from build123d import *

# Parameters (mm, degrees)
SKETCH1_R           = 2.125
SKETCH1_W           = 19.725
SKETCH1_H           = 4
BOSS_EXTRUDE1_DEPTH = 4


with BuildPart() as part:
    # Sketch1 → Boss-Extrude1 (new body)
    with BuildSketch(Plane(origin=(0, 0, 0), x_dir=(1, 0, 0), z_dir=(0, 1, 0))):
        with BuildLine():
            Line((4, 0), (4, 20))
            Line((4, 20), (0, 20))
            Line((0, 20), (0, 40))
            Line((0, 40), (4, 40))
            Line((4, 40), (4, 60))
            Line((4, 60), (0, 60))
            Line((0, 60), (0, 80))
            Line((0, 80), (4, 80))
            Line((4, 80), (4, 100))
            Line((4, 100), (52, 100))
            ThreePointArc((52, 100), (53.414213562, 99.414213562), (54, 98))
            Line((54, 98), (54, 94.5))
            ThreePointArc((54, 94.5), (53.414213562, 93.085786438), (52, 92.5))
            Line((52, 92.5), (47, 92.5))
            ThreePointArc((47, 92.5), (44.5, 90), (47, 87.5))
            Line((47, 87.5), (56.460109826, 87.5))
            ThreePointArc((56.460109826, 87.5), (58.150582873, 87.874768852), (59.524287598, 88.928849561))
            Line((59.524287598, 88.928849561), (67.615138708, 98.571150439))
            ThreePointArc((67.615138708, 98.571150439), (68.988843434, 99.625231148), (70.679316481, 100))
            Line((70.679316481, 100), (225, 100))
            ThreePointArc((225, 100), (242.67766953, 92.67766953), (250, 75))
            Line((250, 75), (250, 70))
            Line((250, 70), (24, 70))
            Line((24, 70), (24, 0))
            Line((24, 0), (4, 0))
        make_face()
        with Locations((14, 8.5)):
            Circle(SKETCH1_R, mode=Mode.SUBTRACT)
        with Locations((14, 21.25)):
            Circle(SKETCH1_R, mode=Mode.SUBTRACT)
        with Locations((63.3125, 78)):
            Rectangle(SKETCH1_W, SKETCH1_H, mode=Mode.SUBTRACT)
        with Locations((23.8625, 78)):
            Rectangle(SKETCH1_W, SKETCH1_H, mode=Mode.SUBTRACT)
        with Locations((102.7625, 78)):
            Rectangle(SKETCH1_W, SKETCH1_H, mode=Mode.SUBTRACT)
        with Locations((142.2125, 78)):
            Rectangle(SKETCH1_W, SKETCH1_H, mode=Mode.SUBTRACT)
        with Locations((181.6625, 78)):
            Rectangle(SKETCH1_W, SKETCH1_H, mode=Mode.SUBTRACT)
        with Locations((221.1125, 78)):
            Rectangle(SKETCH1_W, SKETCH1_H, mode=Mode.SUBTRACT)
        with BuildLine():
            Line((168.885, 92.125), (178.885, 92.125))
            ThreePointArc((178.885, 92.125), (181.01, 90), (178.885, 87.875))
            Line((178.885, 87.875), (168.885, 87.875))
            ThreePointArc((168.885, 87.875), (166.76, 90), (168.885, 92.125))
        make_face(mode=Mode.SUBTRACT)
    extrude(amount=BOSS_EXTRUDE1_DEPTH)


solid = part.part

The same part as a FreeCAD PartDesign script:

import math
import FreeCAD as App
import Part
import Sketcher
Q = App.Units.Quantity

doc = App.newDocument("Part")
body = doc.addObject("PartDesign::Body", "Body")

# Sketch on XZ plane
sketch1 = body.newObject("Sketcher::SketchObject", "Sketch")
sketch1.AttachmentSupport = (doc.getObject("XZ_Plane"), [""])
sketch1.MapMode = "FlatFace"
sketch1.addGeometry(Part.LineSegment(App.Vector(4, -20, 0), App.Vector(4, 0, 0)), False)
sketch1.addGeometry(Part.LineSegment(App.Vector(4, 0, 0), App.Vector(24, 0, 0)), False)
sketch1.addGeometry(Part.LineSegment(App.Vector(24, 0, 0), App.Vector(24, -70, 0)), False)
sketch1.addGeometry(Part.LineSegment(App.Vector(24, -70, 0), App.Vector(250, -70, 0)), False)
sketch1.addGeometry(Part.LineSegment(App.Vector(250, -70, 0), App.Vector(250, -75, 0)), False)
sketch1.addGeometry(Part.ArcOfCircle(Part.Circle(App.Vector(225, -75, 0), App.Vector(0, 0, 1), 25), math.radians(-90), math.radians(0)), False)
sketch1.addGeometry(Part.LineSegment(App.Vector(225, -100, 0), App.Vector(70.7, -100, 0)), False)
sketch1.addGeometry(Part.ArcOfCircle(Part.Circle(App.Vector(70.7, -96, 0), App.Vector(0, 0, 1), 4), math.radians(-140), math.radians(-90)), False)
sketch1.addGeometry(Part.LineSegment(App.Vector(67.6, -98.6, 0), App.Vector(59.5, -88.9, 0)), False)
sketch1.addGeometry(Part.ArcOfCircle(Part.Circle(App.Vector(56.5, -91.5, 0), App.Vector(0, 0, 1), 4), math.radians(40), math.radians(90)), False)
sketch1.addGeometry(Part.LineSegment(App.Vector(56.5, -87.5, 0), App.Vector(47, -87.5, 0)), False)
sketch1.addGeometry(Part.ArcOfCircle(Part.Circle(App.Vector(47, -90, 0), App.Vector(0, 0, 1), 2.5), math.radians(90), math.radians(270)), False)
sketch1.addGeometry(Part.LineSegment(App.Vector(47, -92.5, 0), App.Vector(52, -92.5, 0)), False)
sketch1.addGeometry(Part.ArcOfCircle(Part.Circle(App.Vector(52, -94.5, 0), App.Vector(0, 0, 1), 2), math.radians(0), math.radians(90)), False)
sketch1.addGeometry(Part.LineSegment(App.Vector(54, -94.5, 0), App.Vector(54, -98, 0)), False)
sketch1.addGeometry(Part.ArcOfCircle(Part.Circle(App.Vector(52, -98, 0), App.Vector(0, 0, 1), 2), math.radians(-90), math.radians(0)), False)
sketch1.addGeometry(Part.LineSegment(App.Vector(52, -100, 0), App.Vector(4, -100, 0)), False)
sketch1.addGeometry(Part.LineSegment(App.Vector(4, -100, 0), App.Vector(4, -80, 0)), False)
sketch1.addGeometry(Part.LineSegment(App.Vector(4, -80, 0), App.Vector(0, -80, 0)), False)
sketch1.addGeometry(Part.LineSegment(App.Vector(0, -80, 0), App.Vector(0, -60, 0)), False)
sketch1.addGeometry(Part.LineSegment(App.Vector(0, -60, 0), App.Vector(4, -60, 0)), False)
sketch1.addGeometry(Part.LineSegment(App.Vector(4, -60, 0), App.Vector(4, -40, 0)), False)
sketch1.addGeometry(Part.LineSegment(App.Vector(4, -40, 0), App.Vector(0, -40, 0)), False)
sketch1.addGeometry(Part.LineSegment(App.Vector(0, -40, 0), App.Vector(0, -20, 0)), False)
sketch1.addGeometry(Part.LineSegment(App.Vector(0, -20, 0), App.Vector(4, -20, 0)), False)
sketch1.addGeometry(Part.Circle(App.Vector(14, -8.5, 0), App.Vector(0, 0, 1), 2.1), False)
sketch1.addGeometry(Part.Circle(App.Vector(14, -21.2, 0), App.Vector(0, 0, 1), 2.1), False)
sketch1.addGeometry(Part.LineSegment(App.Vector(211.2, -76, 0), App.Vector(211.2, -80, 0)), False)
sketch1.addGeometry(Part.LineSegment(App.Vector(211.2, -80, 0), App.Vector(231, -80, 0)), False)
sketch1.addGeometry(Part.LineSegment(App.Vector(231, -80, 0), App.Vector(231, -76, 0)), False)
sketch1.addGeometry(Part.LineSegment(App.Vector(231, -76, 0), App.Vector(211.2, -76, 0)), False)
sketch1.addGeometry(Part.LineSegment(App.Vector(171.8, -76, 0), App.Vector(171.8, -80, 0)), False)
sketch1.addGeometry(Part.LineSegment(App.Vector(171.8, -80, 0), App.Vector(191.5, -80, 0)), False)
sketch1.addGeometry(Part.LineSegment(App.Vector(191.5, -80, 0), App.Vector(191.5, -76, 0)), False)
sketch1.addGeometry(Part.LineSegment(App.Vector(191.5, -76, 0), App.Vector(171.8, -76, 0)), False)
sketch1.addGeometry(Part.LineSegment(App.Vector(132.3, -76, 0), App.Vector(132.3, -80, 0)), False)
sketch1.addGeometry(Part.LineSegment(App.Vector(132.3, -80, 0), App.Vector(152.1, -80, 0)), False)
sketch1.addGeometry(Part.LineSegment(App.Vector(152.1, -80, 0), App.Vector(152.1, -76, 0)), False)
sketch1.addGeometry(Part.LineSegment(App.Vector(152.1, -76, 0), App.Vector(132.3, -76, 0)), False)
sketch1.addGeometry(Part.LineSegment(App.Vector(168.9, -92.1, 0), App.Vector(178.9, -92.1, 0)), False)
sketch1.addGeometry(Part.ArcOfCircle(Part.Circle(App.Vector(178.9, -90, 0), App.Vector(0, 0, 1), 2.1), math.radians(-90), math.radians(90)), False)
sketch1.addGeometry(Part.LineSegment(App.Vector(178.9, -87.9, 0), App.Vector(168.9, -87.9, 0)), False)
sketch1.addGeometry(Part.ArcOfCircle(Part.Circle(App.Vector(168.9, -90, 0), App.Vector(0, 0, 1), 2.1), math.radians(90), math.radians(270)), False)
sketch1.addGeometry(Part.LineSegment(App.Vector(92.9, -76, 0), App.Vector(92.9, -80, 0)), False)
sketch1.addGeometry(Part.LineSegment(App.Vector(92.9, -80, 0), App.Vector(112.6, -80, 0)), False)
sketch1.addGeometry(Part.LineSegment(App.Vector(112.6, -80, 0), App.Vector(112.6, -76, 0)), False)
sketch1.addGeometry(Part.LineSegment(App.Vector(112.6, -76, 0), App.Vector(92.9, -76, 0)), False)
sketch1.addGeometry(Part.LineSegment(App.Vector(53.5, -76, 0), App.Vector(53.5, -80, 0)), False)
sketch1.addGeometry(Part.LineSegment(App.Vector(53.5, -80, 0), App.Vector(73.2, -80, 0)), False)
sketch1.addGeometry(Part.LineSegment(App.Vector(73.2, -80, 0), App.Vector(73.2, -76, 0)), False)
sketch1.addGeometry(Part.LineSegment(App.Vector(73.2, -76, 0), App.Vector(53.5, -76, 0)), False)
sketch1.addGeometry(Part.LineSegment(App.Vector(14, -76, 0), App.Vector(14, -80, 0)), False)
sketch1.addGeometry(Part.LineSegment(App.Vector(14, -80, 0), App.Vector(33.7, -80, 0)), False)
sketch1.addGeometry(Part.LineSegment(App.Vector(33.7, -80, 0), App.Vector(33.7, -76, 0)), False)
sketch1.addGeometry(Part.LineSegment(App.Vector(33.7, -76, 0), App.Vector(14, -76, 0)), False)
sketch1.addConstraint(Sketcher.Constraint("Coincident", 0, 2, 1, 1))
sketch1.addConstraint(Sketcher.Constraint("Coincident", 1, 2, 2, 1))
sketch1.addConstraint(Sketcher.Constraint("Coincident", 2, 2, 3, 1))
sketch1.addConstraint(Sketcher.Constraint("Coincident", 3, 2, 4, 1))
sketch1.addConstraint(Sketcher.Constraint("Tangent", 4, 2, 5, 2))
sketch1.addConstraint(Sketcher.Constraint("Tangent", 5, 1, 6, 1))
sketch1.addConstraint(Sketcher.Constraint("Tangent", 6, 2, 7, 2))
sketch1.addConstraint(Sketcher.Constraint("Tangent", 7, 1, 8, 1))
sketch1.addConstraint(Sketcher.Constraint("Tangent", 8, 2, 9, 1))
sketch1.addConstraint(Sketcher.Constraint("Tangent", 9, 2, 10, 1))
sketch1.addConstraint(Sketcher.Constraint("Tangent", 10, 2, 11, 1))
sketch1.addConstraint(Sketcher.Constraint("Tangent", 11, 2, 12, 1))
sketch1.addConstraint(Sketcher.Constraint("Tangent", 12, 2, 13, 2))
sketch1.addConstraint(Sketcher.Constraint("Tangent", 13, 1, 14, 1))
sketch1.addConstraint(Sketcher.Constraint("Tangent", 14, 2, 15, 2))
sketch1.addConstraint(Sketcher.Constraint("Tangent", 15, 1, 16, 1))
sketch1.addConstraint(Sketcher.Constraint("Coincident", 16, 2, 17, 1))
sketch1.addConstraint(Sketcher.Constraint("Coincident", 17, 2, 18, 1))
sketch1.addConstraint(Sketcher.Constraint("Coincident", 18, 2, 19, 1))
sketch1.addConstraint(Sketcher.Constraint("Coincident", 19, 2, 20, 1))
sketch1.addConstraint(Sketcher.Constraint("Coincident", 20, 2, 21, 1))
sketch1.addConstraint(Sketcher.Constraint("Coincident", 21, 2, 22, 1))
sketch1.addConstraint(Sketcher.Constraint("Coincident", 22, 2, 23, 1))
sketch1.addConstraint(Sketcher.Constraint("Coincident", 23, 2, 24, 1))
sketch1.addConstraint(Sketcher.Constraint("Coincident", 24, 2, 0, 1))
sketch1.addConstraint(Sketcher.Constraint("Coincident", 27, 2, 28, 1))
sketch1.addConstraint(Sketcher.Constraint("Coincident", 28, 2, 29, 1))
sketch1.addConstraint(Sketcher.Constraint("Coincident", 29, 2, 30, 1))
sketch1.addConstraint(Sketcher.Constraint("Coincident", 30, 2, 27, 1))
sketch1.addConstraint(Sketcher.Constraint("Coincident", 31, 2, 32, 1))
sketch1.addConstraint(Sketcher.Constraint("Coincident", 32, 2, 33, 1))
sketch1.addConstraint(Sketcher.Constraint("Coincident", 33, 2, 34, 1))
sketch1.addConstraint(Sketcher.Constraint("Coincident", 34, 2, 31, 1))
sketch1.addConstraint(Sketcher.Constraint("Coincident", 35, 2, 36, 1))
sketch1.addConstraint(Sketcher.Constraint("Coincident", 36, 2, 37, 1))
sketch1.addConstraint(Sketcher.Constraint("Coincident", 37, 2, 38, 1))
sketch1.addConstraint(Sketcher.Constraint("Coincident", 38, 2, 35, 1))
sketch1.addConstraint(Sketcher.Constraint("Tangent", 39, 2, 40, 1))
sketch1.addConstraint(Sketcher.Constraint("Tangent", 40, 2, 41, 1))
sketch1.addConstraint(Sketcher.Constraint("Tangent", 41, 2, 42, 1))
sketch1.addConstraint(Sketcher.Constraint("Tangent", 42, 2, 39, 1))
sketch1.addConstraint(Sketcher.Constraint("Coincident", 43, 2, 44, 1))
sketch1.addConstraint(Sketcher.Constraint("Coincident", 44, 2, 45, 1))
sketch1.addConstraint(Sketcher.Constraint("Coincident", 45, 2, 46, 1))
sketch1.addConstraint(Sketcher.Constraint("Coincident", 46, 2, 43, 1))
sketch1.addConstraint(Sketcher.Constraint("Coincident", 47, 2, 48, 1))
sketch1.addConstraint(Sketcher.Constraint("Coincident", 48, 2, 49, 1))
sketch1.addConstraint(Sketcher.Constraint("Coincident", 49, 2, 50, 1))
sketch1.addConstraint(Sketcher.Constraint("Coincident", 50, 2, 47, 1))
sketch1.addConstraint(Sketcher.Constraint("Coincident", 51, 2, 52, 1))
sketch1.addConstraint(Sketcher.Constraint("Coincident", 52, 2, 53, 1))
sketch1.addConstraint(Sketcher.Constraint("Coincident", 53, 2, 54, 1))
sketch1.addConstraint(Sketcher.Constraint("Coincident", 54, 2, 51, 1))
sketch1.addConstraint(Sketcher.Constraint("Vertical", 0))
sketch1.addConstraint(Sketcher.Constraint("Horizontal", 1))
sketch1.addConstraint(Sketcher.Constraint("Vertical", 2))
sketch1.addConstraint(Sketcher.Constraint("Horizontal", 3))
sketch1.addConstraint(Sketcher.Constraint("Vertical", 4))
sketch1.addConstraint(Sketcher.Constraint("Horizontal", 6))
sketch1.addConstraint(Sketcher.Constraint("Horizontal", 10))
sketch1.addConstraint(Sketcher.Constraint("Horizontal", 12))
sketch1.addConstraint(Sketcher.Constraint("Vertical", 14))
sketch1.addConstraint(Sketcher.Constraint("Horizontal", 16))
sketch1.addConstraint(Sketcher.Constraint("Vertical", 17))
sketch1.addConstraint(Sketcher.Constraint("Horizontal", 18))
sketch1.addConstraint(Sketcher.Constraint("Vertical", 19))
sketch1.addConstraint(Sketcher.Constraint("Horizontal", 20))
sketch1.addConstraint(Sketcher.Constraint("Vertical", 21))
sketch1.addConstraint(Sketcher.Constraint("Horizontal", 22))
sketch1.addConstraint(Sketcher.Constraint("Vertical", 23))
sketch1.addConstraint(Sketcher.Constraint("Horizontal", 24))
sketch1.addConstraint(Sketcher.Constraint("Vertical", 27))
sketch1.addConstraint(Sketcher.Constraint("Horizontal", 28))
sketch1.addConstraint(Sketcher.Constraint("Vertical", 29))
sketch1.addConstraint(Sketcher.Constraint("Horizontal", 30))
sketch1.addConstraint(Sketcher.Constraint("Vertical", 31))
sketch1.addConstraint(Sketcher.Constraint("Horizontal", 32))
sketch1.addConstraint(Sketcher.Constraint("Vertical", 33))
sketch1.addConstraint(Sketcher.Constraint("Horizontal", 34))
sketch1.addConstraint(Sketcher.Constraint("Vertical", 35))
sketch1.addConstraint(Sketcher.Constraint("Horizontal", 36))
sketch1.addConstraint(Sketcher.Constraint("Vertical", 37))
sketch1.addConstraint(Sketcher.Constraint("Horizontal", 38))
sketch1.addConstraint(Sketcher.Constraint("Horizontal", 39))
sketch1.addConstraint(Sketcher.Constraint("Horizontal", 41))
sketch1.addConstraint(Sketcher.Constraint("Vertical", 43))
sketch1.addConstraint(Sketcher.Constraint("Horizontal", 44))
sketch1.addConstraint(Sketcher.Constraint("Vertical", 45))
sketch1.addConstraint(Sketcher.Constraint("Horizontal", 46))
sketch1.addConstraint(Sketcher.Constraint("Vertical", 47))
sketch1.addConstraint(Sketcher.Constraint("Horizontal", 48))
sketch1.addConstraint(Sketcher.Constraint("Vertical", 49))
sketch1.addConstraint(Sketcher.Constraint("Horizontal", 50))
sketch1.addConstraint(Sketcher.Constraint("Vertical", 51))
sketch1.addConstraint(Sketcher.Constraint("Horizontal", 52))
sketch1.addConstraint(Sketcher.Constraint("Vertical", 53))
sketch1.addConstraint(Sketcher.Constraint("Horizontal", 54))
sketch1.addConstraint(Sketcher.Constraint("Equal", 7, 9))
sketch1.addConstraint(Sketcher.Constraint("Equal", 13, 15))
sketch1.addConstraint(Sketcher.Constraint("Equal", 25, 26))
sketch1.addConstraint(Sketcher.Constraint("Equal", 26, 40))
sketch1.addConstraint(Sketcher.Constraint("PointOnObject", 0, 2, -1))
sketch1.addConstraint(Sketcher.Constraint("PointOnObject", 18, 2, -2))
sketch1.addConstraint(Sketcher.Constraint("PointOnObject", 22, 2, -2))
sketch1.addConstraint(Sketcher.Constraint("Horizontal", 11, 3, 40, 3))
sketch1.addConstraint(Sketcher.Constraint("Horizontal", 6, 2, 15, 1))
sketch1.addConstraint(Sketcher.Constraint("Horizontal", 18, 2, 27, 2))
sketch1.addConstraint(Sketcher.Constraint("Horizontal", 28, 2, 31, 2))
sketch1.addConstraint(Sketcher.Constraint("Horizontal", 30, 2, 33, 2))
sketch1.addConstraint(Sketcher.Constraint("Horizontal", 32, 2, 35, 2))
sketch1.addConstraint(Sketcher.Constraint("Horizontal", 34, 2, 37, 2))
sketch1.addConstraint(Sketcher.Constraint("Horizontal", 36, 2, 43, 2))
sketch1.addConstraint(Sketcher.Constraint("Horizontal", 38, 2, 45, 2))
sketch1.addConstraint(Sketcher.Constraint("Horizontal", 44, 2, 47, 2))
sketch1.addConstraint(Sketcher.Constraint("Horizontal", 46, 2, 49, 2))
sketch1.addConstraint(Sketcher.Constraint("Horizontal", 48, 2, 51, 2))
sketch1.addConstraint(Sketcher.Constraint("Horizontal", 50, 2, 53, 2))
sketch1.addConstraint(Sketcher.Constraint("Vertical", 25, 3, 26, 3))
sketch1.addConstraint(Sketcher.Constraint("Vertical", 0, 2, 16, 2))
sketch1.addConstraint(Sketcher.Constraint("Vertical", 17, 2, 20, 2))
sketch1.addConstraint(Sketcher.Constraint("Vertical", 26, 3, 51, 2))
sketch1.addConstraint(Sketcher.Constraint("Equal", 30, 32))
sketch1.addConstraint(Sketcher.Constraint("Equal", 34, 36))
sketch1.addConstraint(Sketcher.Constraint("Equal", 38, 44))
sketch1.addConstraint(Sketcher.Constraint("Equal", 46, 48))
sketch1.addConstraint(Sketcher.Constraint("Equal", 50, 52))
sketch1.addConstraint(Sketcher.Constraint("Equal", 1, 0))
sketch1.addConstraint(Sketcher.Constraint("Equal", 12, 4))
sketch1.addConstraint(Sketcher.Constraint("Equal", 0, 17))
sketch1.addConstraint(Sketcher.Constraint("Equal", 17, 19))
sketch1.addConstraint(Sketcher.Constraint("Equal", 19, 21))
sketch1.addConstraint(Sketcher.Constraint("Equal", 21, 23))
sketch1.addConstraint(Sketcher.Constraint("Equal", 24, 27))
sketch1.addConstraint(Sketcher.Constraint("Radius", 5, 25.0))
sketch1.addConstraint(Sketcher.Constraint("Radius", 7, 4.0))
sketch1.addConstraint(Sketcher.Constraint("Radius", 13, 2.0))
sketch1.addConstraint(Sketcher.Constraint("Radius", 11, 2.5))
sketch1.addConstraint(Sketcher.Constraint("Diameter", 25, 4.25))
sketch1.addConstraint(Sketcher.Constraint("DistanceX", 1, 1, 1, 2, 20.0))
sketch1.addConstraint(Sketcher.Constraint("DistanceX", 3, 1, 3, 2, 226.0))
sketch1.addConstraint(Sketcher.Constraint("DistanceX", 12, 1, 12, 2, 5.0))
sketch1.addConstraint(Sketcher.Constraint("DistanceX", 16, 2, 16, 1, 48.0))
sketch1.addConstraint(Sketcher.Constraint("DistanceX", 18, 2, 18, 1, 4.0))
sketch1.addConstraint(Sketcher.Constraint("DistanceX", 39, 1, 39, 2, 10.0))
sketch1.addConstraint(Sketcher.Constraint("Angle", 8, Q("130 deg")))
sketch1.addConstraint(Sketcher.Constraint("DistanceY", 14, 2, 14, 1, 3.5))
sketch1.addConstraint(Sketcher.Constraint("DistanceX", -1, 1, 25, 3, 14.0))
sketch1.addConstraint(Sketcher.Constraint("DistanceY", 25, 3, -1, 1, 8.5))
sketch1.addConstraint(Sketcher.Constraint("DistanceX", -1, 1, 31, 2, 171.8))
sketch1.addConstraint(Sketcher.Constraint("DistanceX", -1, 1, 43, 2, 92.9))
sketch1.addConstraint(Sketcher.Constraint("DistanceX", 28, 1, 28, 2, 19.725))
sketch1.addConstraint(Sketcher.Constraint("DistanceY", 26, 3, -1, 1, 21.25))
sketch1.addConstraint(Sketcher.Constraint("DistanceX", -1, 1, 27, 2, 211.25))
sketch1.addConstraint(Sketcher.Constraint("DistanceX", -1, 1, 35, 2, 132.35))
sketch1.addConstraint(Sketcher.Constraint("DistanceX", -1, 1, 47, 2, 53.45))
sketch1.addConstraint(Sketcher.Constraint("DistanceX", -1, 1, 40, 3, 178.885))
sketch1.addConstraint(Sketcher.Constraint("DistanceX", 10, 2, 10, 1, 9.46011))
pad1 = body.newObject("PartDesign::Pad", "Pad")
pad1.Profile = sketch1
pad1.Length = 4
pad1.Reversed = True

doc.recompute()
